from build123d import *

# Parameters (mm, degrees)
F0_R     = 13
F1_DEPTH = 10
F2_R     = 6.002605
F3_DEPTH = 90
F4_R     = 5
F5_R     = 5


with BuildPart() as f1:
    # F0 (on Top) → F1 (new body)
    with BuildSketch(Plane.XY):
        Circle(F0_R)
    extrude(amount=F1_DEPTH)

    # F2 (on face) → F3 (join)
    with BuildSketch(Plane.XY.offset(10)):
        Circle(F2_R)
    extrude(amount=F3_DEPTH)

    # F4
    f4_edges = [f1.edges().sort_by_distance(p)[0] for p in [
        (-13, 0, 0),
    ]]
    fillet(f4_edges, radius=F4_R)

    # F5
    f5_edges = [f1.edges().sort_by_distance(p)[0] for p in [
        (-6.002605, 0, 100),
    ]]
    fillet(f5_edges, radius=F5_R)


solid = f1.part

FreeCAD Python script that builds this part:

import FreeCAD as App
import Part
import Sketcher
from FreeCAD import Vector
Q = App.Units.Quantity


def edges_at(feature, points):
    """Names of the edges that pass closest to the given points."""
    edges = feature.Shape.Edges
    near = lambda p: min(range(len(edges)), key=lambda i: edges[i].distToShape(Part.Vertex(*p))[0])
    return sorted({f"Edge{near(p) + 1}" for p in points})

doc = App.newDocument("Part")
params = doc.addObject("Spreadsheet::Sheet", "Params")
for row, (alias, value) in enumerate([
    ("sketch1_diameter", "26 mm"),
    ("pad1_length", "10 mm"),
    ("pad2_length", "90 mm"),
    ("fillet_radius", "5 mm"),
    ("fillet2_radius", "5 mm"),
], start=1):
    params.set(f"A{row}", alias)
    params.set(f"B{row}", "=" + value)
    params.setAlias(f"B{row}", alias)

body = doc.addObject("PartDesign::Body", "Body")

# Sketch on XY plane
sketch1 = body.newObject("Sketcher::SketchObject", "Sketch")
sketch1.AttachmentSupport = (doc.getObject("XY_Plane"), [""])
sketch1.MapMode = "FlatFace"
sketch1.addGeometry(Part.Circle(Vector(0, 0, 0), Vector(0, 0, 1), 13), False)
sketch1.addConstraint([
    Sketcher.Constraint("Coincident", 0, 3, -1, 1),
    Sketcher.Constraint("Diameter", 0, Q("26 mm")),
])
sketch1.setExpression("Constraints[1]", "Params.sketch1_diameter")
pad1 = body.newObject("PartDesign::Pad", "Pad")
pad1.Profile = sketch1
pad1.setExpression("Length", "Params.pad1_length")

# Sketch on XY plane
sketch2 = body.newObject("Sketcher::SketchObject", "Sketch001")
sketch2.AttachmentSupport = (doc.getObject("XY_Plane"), [""])
sketch2.MapMode = "FlatFace"
sketch2.AttachmentOffset = App.Placement(Vector(0, 0, 10), App.Rotation())
sketch2.addGeometry(Part.Circle(Vector(0, 0, 0), Vector(0, 0, 1), 6.002605), False)
sketch2.addConstraint([
    Sketcher.Constraint("Coincident", 0, 3, -1, 1),
    Sketcher.Constraint("Diameter", 0, Q("12.00521 mm")),
])
pad2 = body.newObject("PartDesign::Pad", "Pad001")
pad2.Profile = sketch2
pad2.setExpression("Length", "Params.pad2_length")
doc.recompute()

fillet = body.newObject("PartDesign::Fillet", "Fillet")
fillet.Base = (pad2, edges_at(pad2, [(-13, 0, 0)]))
fillet.setExpression("Radius", "Params.fillet_radius")
doc.recompute()

fillet2 = body.newObject("PartDesign::Fillet", "Fillet001")
fillet2.Base = (fillet, edges_at(fillet, [(-6.003, 0, 100)]))
fillet2.setExpression("Radius", "Params.fillet2_radius")

doc.recompute()
